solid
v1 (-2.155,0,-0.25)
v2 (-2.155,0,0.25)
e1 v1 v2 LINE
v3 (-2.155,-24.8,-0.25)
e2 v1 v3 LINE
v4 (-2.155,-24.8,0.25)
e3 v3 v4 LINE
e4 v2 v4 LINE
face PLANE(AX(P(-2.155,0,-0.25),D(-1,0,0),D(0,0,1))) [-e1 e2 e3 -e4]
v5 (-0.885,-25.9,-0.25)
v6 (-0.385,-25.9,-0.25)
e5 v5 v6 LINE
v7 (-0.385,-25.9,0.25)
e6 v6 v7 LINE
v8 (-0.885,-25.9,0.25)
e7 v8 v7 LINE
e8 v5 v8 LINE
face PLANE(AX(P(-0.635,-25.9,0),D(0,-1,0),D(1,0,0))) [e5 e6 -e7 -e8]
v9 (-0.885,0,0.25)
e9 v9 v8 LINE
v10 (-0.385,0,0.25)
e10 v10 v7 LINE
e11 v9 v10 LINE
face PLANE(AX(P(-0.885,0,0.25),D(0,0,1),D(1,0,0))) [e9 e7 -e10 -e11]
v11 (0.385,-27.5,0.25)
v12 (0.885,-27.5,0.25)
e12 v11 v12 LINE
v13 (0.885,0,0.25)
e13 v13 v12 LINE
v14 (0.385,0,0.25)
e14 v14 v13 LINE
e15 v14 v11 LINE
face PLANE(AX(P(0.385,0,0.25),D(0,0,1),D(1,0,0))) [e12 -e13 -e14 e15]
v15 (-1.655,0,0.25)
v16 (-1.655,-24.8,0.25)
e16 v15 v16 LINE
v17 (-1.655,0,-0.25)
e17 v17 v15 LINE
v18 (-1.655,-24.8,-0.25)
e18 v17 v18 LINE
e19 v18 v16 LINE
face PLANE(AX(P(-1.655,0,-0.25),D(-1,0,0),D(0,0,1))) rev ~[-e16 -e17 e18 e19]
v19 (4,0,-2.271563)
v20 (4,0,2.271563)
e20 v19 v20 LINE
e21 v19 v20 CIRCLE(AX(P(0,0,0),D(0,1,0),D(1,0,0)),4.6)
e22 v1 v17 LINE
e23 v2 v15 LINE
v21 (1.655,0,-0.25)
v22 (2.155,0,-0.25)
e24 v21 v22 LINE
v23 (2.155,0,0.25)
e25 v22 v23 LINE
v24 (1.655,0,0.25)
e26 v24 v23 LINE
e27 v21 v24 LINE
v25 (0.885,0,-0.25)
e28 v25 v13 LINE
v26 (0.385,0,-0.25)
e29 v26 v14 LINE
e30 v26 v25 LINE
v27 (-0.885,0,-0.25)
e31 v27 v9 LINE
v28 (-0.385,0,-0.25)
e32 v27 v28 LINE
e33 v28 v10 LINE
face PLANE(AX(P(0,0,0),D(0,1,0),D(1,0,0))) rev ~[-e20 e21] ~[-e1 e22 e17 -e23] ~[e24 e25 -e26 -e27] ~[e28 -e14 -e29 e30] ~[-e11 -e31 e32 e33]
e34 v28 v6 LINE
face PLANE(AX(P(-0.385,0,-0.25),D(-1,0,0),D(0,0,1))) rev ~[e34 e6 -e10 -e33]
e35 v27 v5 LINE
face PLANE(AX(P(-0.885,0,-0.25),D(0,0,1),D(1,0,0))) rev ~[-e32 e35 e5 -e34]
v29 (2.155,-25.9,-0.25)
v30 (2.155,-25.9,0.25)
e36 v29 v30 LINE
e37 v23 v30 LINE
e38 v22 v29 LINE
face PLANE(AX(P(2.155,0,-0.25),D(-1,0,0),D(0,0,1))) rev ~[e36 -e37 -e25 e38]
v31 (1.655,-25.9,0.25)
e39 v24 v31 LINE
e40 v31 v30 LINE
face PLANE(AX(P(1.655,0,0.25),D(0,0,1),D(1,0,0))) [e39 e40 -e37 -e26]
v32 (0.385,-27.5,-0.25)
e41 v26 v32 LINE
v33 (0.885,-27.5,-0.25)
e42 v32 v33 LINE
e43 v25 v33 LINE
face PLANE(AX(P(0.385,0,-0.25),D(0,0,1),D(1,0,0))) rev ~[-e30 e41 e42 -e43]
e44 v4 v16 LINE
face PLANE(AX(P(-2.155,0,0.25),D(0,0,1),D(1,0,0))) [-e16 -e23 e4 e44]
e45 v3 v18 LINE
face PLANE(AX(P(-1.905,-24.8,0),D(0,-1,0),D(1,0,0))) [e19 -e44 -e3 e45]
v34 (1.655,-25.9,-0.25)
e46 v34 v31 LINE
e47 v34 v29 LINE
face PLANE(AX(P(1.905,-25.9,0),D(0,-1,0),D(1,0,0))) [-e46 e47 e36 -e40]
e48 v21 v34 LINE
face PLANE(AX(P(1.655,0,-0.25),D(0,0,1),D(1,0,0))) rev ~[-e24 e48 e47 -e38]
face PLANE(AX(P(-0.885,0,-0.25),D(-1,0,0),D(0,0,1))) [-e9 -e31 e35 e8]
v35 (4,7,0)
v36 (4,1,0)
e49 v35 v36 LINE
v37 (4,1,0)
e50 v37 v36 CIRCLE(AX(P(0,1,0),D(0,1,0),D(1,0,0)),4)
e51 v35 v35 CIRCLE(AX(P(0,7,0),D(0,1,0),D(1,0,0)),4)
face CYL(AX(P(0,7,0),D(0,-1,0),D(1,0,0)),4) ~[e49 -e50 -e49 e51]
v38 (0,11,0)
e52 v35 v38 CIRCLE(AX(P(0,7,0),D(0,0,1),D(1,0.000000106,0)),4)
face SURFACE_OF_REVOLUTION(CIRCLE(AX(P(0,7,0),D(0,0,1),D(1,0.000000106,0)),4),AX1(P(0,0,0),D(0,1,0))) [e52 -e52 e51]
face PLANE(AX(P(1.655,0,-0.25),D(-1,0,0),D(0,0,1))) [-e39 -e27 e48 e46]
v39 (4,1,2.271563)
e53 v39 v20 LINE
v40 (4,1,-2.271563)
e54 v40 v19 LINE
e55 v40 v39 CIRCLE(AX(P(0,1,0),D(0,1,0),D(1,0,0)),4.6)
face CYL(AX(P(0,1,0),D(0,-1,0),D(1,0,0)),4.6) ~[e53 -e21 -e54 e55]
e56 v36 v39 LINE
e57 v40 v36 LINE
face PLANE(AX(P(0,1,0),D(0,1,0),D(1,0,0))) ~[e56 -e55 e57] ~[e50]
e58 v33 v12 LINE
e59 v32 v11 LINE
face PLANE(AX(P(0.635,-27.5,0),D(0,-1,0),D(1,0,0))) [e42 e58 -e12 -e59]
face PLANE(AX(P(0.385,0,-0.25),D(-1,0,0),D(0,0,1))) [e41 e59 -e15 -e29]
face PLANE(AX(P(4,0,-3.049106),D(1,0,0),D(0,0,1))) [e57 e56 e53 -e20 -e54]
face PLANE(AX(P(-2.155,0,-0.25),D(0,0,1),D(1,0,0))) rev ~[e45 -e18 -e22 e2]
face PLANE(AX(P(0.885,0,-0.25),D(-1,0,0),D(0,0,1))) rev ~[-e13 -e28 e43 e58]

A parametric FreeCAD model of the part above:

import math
import FreeCAD as App
import Part
import Sketcher

V = App.Vector
Q = App.Units.Quantity

doc = App.newDocument("Part")
body = doc.addObject("PartDesign::Body", "Body")

sketch1 = doc.addObject("Sketcher::SketchObject", "Sketch")
body.addObject(sketch1)
sketch1.AttachmentSupport = (doc.XY_Plane, [""])
sketch1.MapMode = "FlatFace"
sketch1.addGeometry([
    Part.ArcOfCircle(Part.Circle(V(0, 7, 0), V(0, 0, 1), 4), math.radians(0), math.radians(90)),
    Part.LineSegment(V(0, 11, 0), V(0, 0, 0)),
    Part.LineSegment(V(0, 0, 0), V(4.6, 0, 0)),
    Part.LineSegment(V(4.6, 0, 0), V(4.6, 1, 0)),
    Part.LineSegment(V(4.6, 1, 0), V(4, 1, 0)),
    Part.LineSegment(V(4, 1, 0), V(4, 7, 0)),
], False)
sketch1.addConstraint([
    Sketcher.Constraint("Coincident", 0, 2, 1, 1),
    Sketcher.Constraint("Coincident", 1, 2, 2, 1),
    Sketcher.Constraint("Coincident", 2, 2, 3, 1),
    Sketcher.Constraint("Coincident", 3, 2, 4, 1),
    Sketcher.Constraint("Coincident", 4, 2, 5, 1),
    Sketcher.Constraint("Tangent", 5, 2, 0, 1),
    Sketcher.Constraint("Vertical", 1),
    Sketcher.Constraint("Horizontal", 2),
    Sketcher.Constraint("Vertical", 3),
    Sketcher.Constraint("Horizontal", 4),
    Sketcher.Constraint("Vertical", 5),
    Sketcher.Constraint("Coincident", 1, 2, -1, 1),
    Sketcher.Constraint("PointOnObject", 0, 3, -2),
    Sketcher.Constraint("Radius", 0, Q("4 mm")),
    Sketcher.Constraint("DistanceY", 1, 2, 1, 1, Q("11 mm")),
    Sketcher.Constraint("DistanceY", 3, 1, 3, 2, Q("1 mm")),
    Sketcher.Constraint("DistanceX", 2, 1, 2, 2, Q("4.6 mm")),
])
revolution = doc.addObject("PartDesign::Revolution", "Revolution")
body.addObject(revolution)
revolution.Profile = sketch1
revolution.ReferenceAxis = (sketch1, ["V_Axis"])
revolution.Angle = 360

sketch2 = doc.addObject("Sketcher::SketchObject", "Sketch001")
body.addObject(sketch2)
sketch2.AttachmentSupport = (doc.XZ_Plane, [""])
sketch2.MapMode = "FlatFace"
sketch2.addGeometry([
    Part.LineSegment(V(0.39, 0.25, 0), V(0.39, -0.25, 0)),
    Part.LineSegment(V(0.39, -0.25, 0), V(0.89, -0.25, 0)),
    Part.LineSegment(V(0.89, -0.25, 0), V(0.89, 0.25, 0)),
    Part.LineSegment(V(0.89, 0.25, 0), V(0.39, 0.25, 0)),
    Part.LineSegment(V(1.66, 0.25, 0), V(1.66, -0.25, 0)),
    Part.LineSegment(V(1.66, -0.25, 0), V(2.15, -0.25, 0)),
    Part.LineSegment(V(2.15, -0.25, 0), V(2.15, 0.25, 0)),
    Part.LineSegment(V(2.15, 0.25, 0), V(1.66, 0.25, 0)),
    Part.LineSegment(V(-0.89, 0.25, 0), V(-0.89, -0.25, 0)),
    Part.LineSegment(V(-0.89, -0.25, 0), V(-0.39, -0.25, 0)),
    Part.LineSegment(V(-0.39, -0.25, 0), V(-0.39, 0.25, 0)),
    Part.LineSegment(V(-0.39, 0.25, 0), V(-0.89, 0.25, 0)),
    Part.LineSegment(V(-2.15, 0.25, 0), V(-2.15, -0.25, 0)),
    Part.LineSegment(V(-2.15, -0.25, 0), V(-1.66, -0.25, 0)),
    Part.LineSegment(V(-1.66, -0.25, 0), V(-1.66, 0.25, 0)),
    Part.LineSegment(V(-1.66, 0.25, 0), V(-2.15, 0.25, 0)),
], False)
sketch2.addConstraint([
    Sketcher.Constraint("Coincident", 0, 2, 1, 1),
    Sketcher.Constraint("Coincident", 1, 2, 2, 1),
    Sketcher.Constraint("Coincident", 2, 2, 3, 1),
    Sketcher.Constraint("Coincident", 3, 2, 0, 1),
    Sketcher.Constraint("Coincident", 4, 2, 5, 1),
    Sketcher.Constraint("Coincident", 5, 2, 6, 1),
    Sketcher.Constraint("Coincident", 6, 2, 7, 1),
    Sketcher.Constraint("Coincident", 7, 2, 4, 1),
    Sketcher.Constraint("Coincident", 8, 2, 9, 1),
    Sketcher.Constraint("Coincident", 9, 2, 10, 1),
    Sketcher.Constraint("Coincident", 10, 2, 11, 1),
    Sketcher.Constraint("Coincident", 11, 2, 8, 1),
    Sketcher.Constraint("Coincident", 12, 2, 13, 1),
    Sketcher.Constraint("Coincident", 13, 2, 14, 1),
    Sketcher.Constraint("Coincident", 14, 2, 15, 1),
    Sketcher.Constraint("Coincident", 15, 2, 12, 1),
    Sketcher.Constraint("Vertical", 0),
    Sketcher.Constraint("Horizontal", 1),
    Sketcher.Constraint("Vertical", 2),
    Sketcher.Constraint("Horizontal", 3),
    Sketcher.Constraint("Vertical", 4),
    Sketcher.Constraint("Horizontal", 5),
    Sketcher.Constraint("Vertical", 6),
    Sketcher.Constraint("Horizontal", 7),
    Sketcher.Constraint("Vertical", 8),
    Sketcher.Constraint("Horizontal", 9),
    Sketcher.Constraint("Vertical", 10),
    Sketcher.Constraint("Horizontal", 11),
    Sketcher.Constraint("Vertical", 12),
    Sketcher.Constraint("Horizontal", 13),
    Sketcher.Constraint("Vertical", 14),
    Sketcher.Constraint("Horizontal", 15),
    Sketcher.Constraint("Symmetric", 2, 2, 8, 2, -1, 1),
    Sketcher.Constraint("Symmetric", 0, 2, 10, 2, -1, 1),
    Sketcher.Constraint("Symmetric", 6, 2, 12, 2, -1, 1),
    Sketcher.Constraint("Symmetric", 4, 2, 14, 2, -1, 1),
    Sketcher.Constraint("Horizontal", 1, 2, 4, 2),
    Sketcher.Constraint("Horizontal", 3, 2, 6, 2),
    Sketcher.Constraint("Horizontal", 5, 2, 8, 2),
    Sketcher.Constraint("Equal", 3, 5),
    Sketcher.Constraint("Equal", 15, 0),
    Sketcher.Constraint("DistanceX", 1, 1, 1, 2, Q("0.5 mm")),
    Sketcher.Constraint("DistanceX", 1, 2, 4, 2, Q("0.77 mm")),
    Sketcher.Constraint("DistanceX", 8, 2, 0, 2, Q("1.27 mm")),
])
pad1 = doc.addObject("PartDesign::Pad", "Pad")
body.addObject(pad1)
pad1.Profile = sketch2
pad1.Length = 27.5

sketch3 = doc.addObject("Sketcher::SketchObject", "Sketch002")
body.addObject(sketch3)
sketch3.AttachmentSupport = (doc.XZ_Plane, [""])
sketch3.MapMode = "FlatFace"
sketch3.addGeometry([
    Part.LineSegment(V(4, 3, 0), V(4, -3, 0)),
    Part.LineSegment(V(4, -3, 0), V(5, -3, 0)),
    Part.LineSegment(V(5, -3, 0), V(5, 3, 0)),
    Part.LineSegment(V(5, 3, 0), V(4, 3, 0)),
], False)
sketch3.addConstraint([
    Sketcher.Constraint("Coincident", 0, 2, 1, 1),
    Sketcher.Constraint("Coincident", 1, 2, 2, 1),
    Sketcher.Constraint("Coincident", 2, 2, 3, 1),
    Sketcher.Constraint("Coincident", 3, 2, 0, 1),
    Sketcher.Constraint("Vertical", 0),
    Sketcher.Constraint("Horizontal", 1),
    Sketcher.Constraint("Vertical", 2),
    Sketcher.Constraint("Horizontal", 3),
    Sketcher.Constraint("DistanceX", 1, 1, 1, 2, Q("1 mm")),
    Sketcher.Constraint("DistanceX", -1, 1, 0, 2, Q("4 mm")),
    Sketcher.Constraint("DistanceY", 0, 2, 0, 1, Q("6.098212 mm")),
    Sketcher.Constraint("DistanceY", 0, 2, -1, 1, Q("3.049106 mm")),
])
pocket1 = doc.addObject("PartDesign::Pocket", "Pocket")
body.addObject(pocket1)
pocket1.Profile = sketch3
pocket1.Length = 5

sketch4 = doc.addObject("Sketcher::SketchObject", "Sketch003")
body.addObject(sketch4)
sketch4.AttachmentSupport = (doc.XZ_Plane, [""])
sketch4.MapMode = "FlatFace"
sketch4.AttachmentOffset = App.Placement(V(0, 0, 27.5), App.Rotation())
sketch4.addGeometry([
    Part.LineSegment(V(-2.15, 0.25, 0), V(-2.15, -0.25, 0)),
    Part.LineSegment(V(-2.15, -0.25, 0), V(-1.66, -0.25, 0)),
    Part.LineSegment(V(-1.66, -0.25, 0), V(-1.66, 0.25, 0)),
    Part.LineSegment(V(-1.66, 0.25, 0), V(-2.15, 0.25, 0)),
], False)
sketch4.addConstraint([
    Sketcher.Constraint("Coincident", 0, 2, 1, 1),
    Sketcher.Constraint("Coincident", 1, 2, 2, 1),
    Sketcher.Constraint("Coincident", 2, 2, 3, 1),
    Sketcher.Constraint("Coincident", 3, 2, 0, 1),
    Sketcher.Constraint("Vertical", 0),
    Sketcher.Constraint("Horizontal", 1),
    Sketcher.Constraint("Vertical", 2),
    Sketcher.Constraint("Horizontal", 3),
    Sketcher.Constraint("Equal", 3, 0),
    Sketcher.Constraint("DistanceX", 1, 1, 1, 2, Q("0.5 mm")),
    Sketcher.Constraint("DistanceY", 0, 2, -1, 1, Q("0.25 mm")),
    Sketcher.Constraint("DistanceX", 0, 2, -1, 1, Q("2.155 mm")),
])
pocket2 = doc.addObject("PartDesign::Pocket", "Pocket001")
body.addObject(pocket2)
pocket2.Profile = sketch4
pocket2.Length = 2.7

sketch5 = doc.addObject("Sketcher::SketchObject", "Sketch004")
body.addObject(sketch5)
sketch5.AttachmentSupport = (doc.XZ_Plane, [""])
sketch5.MapMode = "FlatFace"
sketch5.AttachmentOffset = App.Placement(V(0, 0, 27.5), App.Rotation())
sketch5.addGeometry([
    Part.LineSegment(V(-0.89, 0.25, 0), V(-0.89, -0.25, 0)),
    Part.LineSegment(V(-0.89, -0.25, 0), V(-0.39, -0.25, 0)),
    Part.LineSegment(V(-0.39, -0.25, 0), V(-0.39, 0.25, 0)),
    Part.LineSegment(V(-0.39, 0.25, 0), V(-0.89, 0.25, 0)),
    Part.LineSegment(V(1.66, 0.25, 0), V(1.66, -0.25, 0)),
    Part.LineSegment(V(1.66, -0.25, 0), V(2.15, -0.25, 0)),
    Part.LineSegment(V(2.15, -0.25, 0), V(2.15, 0.25, 0)),
    Part.LineSegment(V(2.15, 0.25, 0), V(1.66, 0.25, 0)),
], False)
sketch5.addConstraint([
    Sketcher.Constraint("Coincident", 0, 2, 1, 1),
    Sketcher.Constraint("Coincident", 1, 2, 2, 1),
    Sketcher.Constraint("Coincident", 2, 2, 3, 1),
    Sketcher.Constraint("Coincident", 3, 2, 0, 1),
    Sketcher.Constraint("Coincident", 4, 2, 5, 1),
    Sketcher.Constraint("Coincident", 5, 2, 6, 1),
    Sketcher.Constraint("Coincident", 6, 2, 7, 1),
    Sketcher.Constraint("Coincident", 7, 2, 4, 1),
    Sketcher.Constraint("Vertical", 0),
    Sketcher.Constraint("Horizontal", 1),
    Sketcher.Constraint("Vertical", 2),
    Sketcher.Constraint("Horizontal", 3),
    Sketcher.Constraint("Vertical", 4),
    Sketcher.Constraint("Horizontal", 5),
    Sketcher.Constraint("Vertical", 6),
    Sketcher.Constraint("Horizontal", 7),
    Sketcher.Constraint("Horizontal", 1, 2, 4, 2),
    Sketcher.Constraint("Horizontal", 3, 2, 6, 2),
    Sketcher.Constraint("Equal", 3, 5),
    Sketcher.Constraint("Equal", 7, 0),
    Sketcher.Constraint("DistanceX", 1, 1, 1, 2, Q("0.5 mm")),
    Sketcher.Constraint("DistanceY", 0, 2, -1, 1, Q("0.25 mm")),
    Sketcher.Constraint("DistanceX", 1, 2, 4, 2, Q("2.04 mm")),
    Sketcher.Constraint("DistanceX", 0, 2, -1, 1, Q("0.885 mm")),
])
pocket3 = doc.addObject("PartDesign::Pocket", "Pocket002")
body.addObject(pocket3)
pocket3.Profile = sketch5
pocket3.Length = 1.6

doc.recompute()
